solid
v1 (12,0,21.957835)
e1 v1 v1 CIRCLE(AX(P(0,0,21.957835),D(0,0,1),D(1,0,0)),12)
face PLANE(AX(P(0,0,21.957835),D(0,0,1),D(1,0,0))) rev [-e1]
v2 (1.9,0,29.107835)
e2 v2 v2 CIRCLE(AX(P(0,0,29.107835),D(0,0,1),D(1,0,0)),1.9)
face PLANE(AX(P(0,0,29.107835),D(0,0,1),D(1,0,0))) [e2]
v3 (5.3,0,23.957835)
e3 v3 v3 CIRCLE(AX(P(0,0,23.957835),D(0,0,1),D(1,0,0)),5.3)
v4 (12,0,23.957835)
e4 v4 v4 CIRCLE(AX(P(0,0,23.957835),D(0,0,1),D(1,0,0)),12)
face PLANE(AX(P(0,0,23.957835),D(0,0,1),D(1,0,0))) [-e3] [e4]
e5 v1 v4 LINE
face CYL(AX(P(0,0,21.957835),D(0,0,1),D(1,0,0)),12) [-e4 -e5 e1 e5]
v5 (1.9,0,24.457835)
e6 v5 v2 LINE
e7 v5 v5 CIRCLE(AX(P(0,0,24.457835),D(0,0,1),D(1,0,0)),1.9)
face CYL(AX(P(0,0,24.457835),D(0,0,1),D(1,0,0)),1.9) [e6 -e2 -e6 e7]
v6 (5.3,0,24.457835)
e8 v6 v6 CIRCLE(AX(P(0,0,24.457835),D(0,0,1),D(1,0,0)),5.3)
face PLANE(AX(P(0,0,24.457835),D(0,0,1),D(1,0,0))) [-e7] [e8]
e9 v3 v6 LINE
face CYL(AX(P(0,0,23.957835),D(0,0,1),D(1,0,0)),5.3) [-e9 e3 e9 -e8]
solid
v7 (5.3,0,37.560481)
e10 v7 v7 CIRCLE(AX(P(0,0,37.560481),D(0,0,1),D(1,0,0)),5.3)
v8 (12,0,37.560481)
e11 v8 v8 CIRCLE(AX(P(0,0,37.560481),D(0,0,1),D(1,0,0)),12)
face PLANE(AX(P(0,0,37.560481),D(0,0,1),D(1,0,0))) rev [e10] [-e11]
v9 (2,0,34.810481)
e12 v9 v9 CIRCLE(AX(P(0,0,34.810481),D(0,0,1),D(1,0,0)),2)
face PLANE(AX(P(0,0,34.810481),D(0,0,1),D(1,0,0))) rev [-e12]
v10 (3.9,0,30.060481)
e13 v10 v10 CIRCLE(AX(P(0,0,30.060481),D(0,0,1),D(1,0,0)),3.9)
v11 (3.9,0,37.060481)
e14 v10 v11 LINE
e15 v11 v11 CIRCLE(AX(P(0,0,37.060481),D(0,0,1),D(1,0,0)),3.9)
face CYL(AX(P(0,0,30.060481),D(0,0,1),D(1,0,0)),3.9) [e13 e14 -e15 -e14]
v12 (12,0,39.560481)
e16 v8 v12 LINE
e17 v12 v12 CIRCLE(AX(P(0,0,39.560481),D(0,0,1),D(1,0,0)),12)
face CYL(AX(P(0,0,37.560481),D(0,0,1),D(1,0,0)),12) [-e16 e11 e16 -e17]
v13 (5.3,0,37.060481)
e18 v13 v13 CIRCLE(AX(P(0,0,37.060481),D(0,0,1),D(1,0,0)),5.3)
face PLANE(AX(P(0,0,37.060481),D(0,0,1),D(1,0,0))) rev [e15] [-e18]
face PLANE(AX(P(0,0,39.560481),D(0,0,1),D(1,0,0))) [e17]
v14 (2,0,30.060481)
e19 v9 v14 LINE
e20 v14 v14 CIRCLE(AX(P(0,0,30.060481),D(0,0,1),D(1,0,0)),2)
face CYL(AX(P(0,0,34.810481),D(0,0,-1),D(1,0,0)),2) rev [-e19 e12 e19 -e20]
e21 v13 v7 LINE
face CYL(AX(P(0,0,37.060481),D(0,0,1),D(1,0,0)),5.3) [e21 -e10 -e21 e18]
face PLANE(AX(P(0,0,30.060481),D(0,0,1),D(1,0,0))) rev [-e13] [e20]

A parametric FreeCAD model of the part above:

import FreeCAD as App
import Part
import Sketcher
Q = App.Units.Quantity


def add_polygon(sketch, points):
    """Adds a closed chain of lines whose ends are joined by coincident constraints."""
    first, n = sketch.GeometryCount, len(points)
    for a, b in zip(points, points[1:] + points[:1]):
        sketch.addGeometry(Part.LineSegment(App.Vector(*a, 0), App.Vector(*b, 0)), False)
    for i in range(n):
        sketch.addConstraint(Sketcher.Constraint("Coincident", first + i, 2, first + (i + 1) % n, 1))

doc = App.newDocument("Part")
body = doc.addObject("PartDesign::Body", "Body")
body.AllowCompound = True

# Sketch on XZ plane
sketch1 = body.newObject("Sketcher::SketchObject", "Sketch")
sketch1.AttachmentSupport = (doc.getObject("XZ_Plane"), [""])
sketch1.MapMode = "FlatFace"
add_polygon(sketch1, [(12, 37.6), (12, 39.6), (0, 39.6), (0, 34.8), (2, 34.8), (2, 30.1), (3.9, 30.1), (3.9, 37.1), (5.3, 37.1), (5.3, 37.6)])  # lines 0-9
sketch1.addConstraint(Sketcher.Constraint("Vertical", 0))
sketch1.addConstraint(Sketcher.Constraint("Horizontal", 1))
sketch1.addConstraint(Sketcher.Constraint("Vertical", 2))
sketch1.addConstraint(Sketcher.Constraint("Horizontal", 3))
sketch1.addConstraint(Sketcher.Constraint("Vertical", 4))
sketch1.addConstraint(Sketcher.Constraint("Horizontal", 5))
sketch1.addConstraint(Sketcher.Constraint("Vertical", 6))
sketch1.addConstraint(Sketcher.Constraint("Horizontal", 7))
sketch1.addConstraint(Sketcher.Constraint("Vertical", 8))
sketch1.addConstraint(Sketcher.Constraint("Horizontal", 9))
sketch1.addConstraint(Sketcher.Constraint("PointOnObject", 1, 2, -2))
sketch1.addConstraint(Sketcher.Constraint("Equal", 3, 0))
sketch1.addConstraint(Sketcher.Constraint("Equal", 2, 4))
sketch1.addConstraint(Sketcher.Constraint("DistanceX", 1, 2, 1, 1, Q("12 mm")))
sketch1.addConstraint(Sketcher.Constraint("DistanceX", 3, 1, 3, 2, Q("2 mm")))
sketch1.addConstraint(Sketcher.Constraint("DistanceY", 6, 1, 6, 2, Q("7 mm")))
sketch1.addConstraint(Sketcher.Constraint("DistanceX", 5, 1, 5, 2, Q("1.9 mm")))
sketch1.addConstraint(Sketcher.Constraint("DistanceX", 7, 1, 7, 2, Q("1.4 mm")))
sketch1.addConstraint(Sketcher.Constraint("DistanceY", 8, 1, 8, 2, Q("0.5 mm")))
sketch1.addConstraint(Sketcher.Constraint("DistanceY", -1, 1, 0, 2, Q("39.560481 mm")))
revolution = body.newObject("PartDesign::Revolution", "Revolution")
revolution.Profile = sketch1
revolution.ReferenceAxis = (sketch1, ["V_Axis"])
revolution.Angle = 360

# Sketch on XZ plane
sketch2 = body.newObject("Sketcher::SketchObject", "Sketch001")
sketch2.AttachmentSupport = (doc.getObject("XZ_Plane"), [""])
sketch2.MapMode = "FlatFace"
add_polygon(sketch2, [(12, 37.6), (12, 39.6), (0, 39.6), (0, 34.8), (2, 34.8), (2, 30.1), (3.9, 30.1), (3.9, 37.1), (5.3, 37.1), (5.3, 37.6)])  # lines 0-9
add_polygon(sketch2, [(1.9, 29.1), (0, 29.1), (0, 22), (12, 22), (12, 24), (5.3, 24), (5.3, 24.5), (1.9, 24.5)])  # lines 10-17
sketch2.addConstraint(Sketcher.Constraint("Vertical", 0))
sketch2.addConstraint(Sketcher.Constraint("Horizontal", 1))
sketch2.addConstraint(Sketcher.Constraint("Vertical", 2))
sketch2.addConstraint(Sketcher.Constraint("Horizontal", 3))
sketch2.addConstraint(Sketcher.Constraint("Vertical", 4))
sketch2.addConstraint(Sketcher.Constraint("Horizontal", 5))
sketch2.addConstraint(Sketcher.Constraint("Vertical", 6))
sketch2.addConstraint(Sketcher.Constraint("Horizontal", 7))
sketch2.addConstraint(Sketcher.Constraint("Vertical", 8))
sketch2.addConstraint(Sketcher.Constraint("Horizontal", 9))
sketch2.addConstraint(Sketcher.Constraint("Horizontal", 10))
sketch2.addConstraint(Sketcher.Constraint("Vertical", 11))
sketch2.addConstraint(Sketcher.Constraint("Horizontal", 12))
sketch2.addConstraint(Sketcher.Constraint("Vertical", 13))
sketch2.addConstraint(Sketcher.Constraint("Horizontal", 14))
sketch2.addConstraint(Sketcher.Constraint("Vertical", 15))
sketch2.addConstraint(Sketcher.Constraint("Horizontal", 16))
sketch2.addConstraint(Sketcher.Constraint("Vertical", 17))
sketch2.addConstraint(Sketcher.Constraint("PointOnObject", 1, 2, -2))
sketch2.addConstraint(Sketcher.Constraint("PointOnObject", 10, 2, -2))
sketch2.addConstraint(Sketcher.Constraint("Vertical", 9, 2, 12, 2))
sketch2.addConstraint(Sketcher.Constraint("Vertical", 8, 2, 14, 2))
sketch2.addConstraint(Sketcher.Constraint("Equal", 5, 10))
sketch2.addConstraint(Sketcher.Constraint("Equal", 3, 0))
sketch2.addConstraint(Sketcher.Constraint("Equal", 2, 4))
sketch2.addConstraint(Sketcher.Constraint("Equal", 0, 13))
sketch2.addConstraint(Sketcher.Constraint("Equal", 8, 15))
sketch2.addConstraint(Sketcher.Constraint("DistanceX", 1, 2, 1, 1, Q("12 mm")))
sketch2.addConstraint(Sketcher.Constraint("DistanceX", 3, 1, 3, 2, Q("2 mm")))
sketch2.addConstraint(Sketcher.Constraint("DistanceY", 6, 1, 6, 2, Q("7 mm")))
sketch2.addConstraint(Sketcher.Constraint("DistanceX", 5, 1, 5, 2, Q("1.9 mm")))
sketch2.addConstraint(Sketcher.Constraint("DistanceX", 7, 1, 7, 2, Q("1.4 mm")))
sketch2.addConstraint(Sketcher.Constraint("DistanceY", 8, 1, 8, 2, Q("0.5 mm")))
sketch2.addConstraint(Sketcher.Constraint("DistanceY", 11, 2, 11, 1, Q("7.15 mm")))
sketch2.addConstraint(Sketcher.Constraint("DistanceY", -1, 1, 0, 2, Q("39.560481 mm")))
sketch2.addConstraint(Sketcher.Constraint("DistanceY", -1, 1, 10, 2, Q("29.107835 mm")))
revolution2 = body.newObject("PartDesign::Revolution", "Revolution001")
revolution2.Profile = sketch2
revolution2.ReferenceAxis = (sketch2, ["V_Axis"])
revolution2.Angle = 360

doc.recompute()
